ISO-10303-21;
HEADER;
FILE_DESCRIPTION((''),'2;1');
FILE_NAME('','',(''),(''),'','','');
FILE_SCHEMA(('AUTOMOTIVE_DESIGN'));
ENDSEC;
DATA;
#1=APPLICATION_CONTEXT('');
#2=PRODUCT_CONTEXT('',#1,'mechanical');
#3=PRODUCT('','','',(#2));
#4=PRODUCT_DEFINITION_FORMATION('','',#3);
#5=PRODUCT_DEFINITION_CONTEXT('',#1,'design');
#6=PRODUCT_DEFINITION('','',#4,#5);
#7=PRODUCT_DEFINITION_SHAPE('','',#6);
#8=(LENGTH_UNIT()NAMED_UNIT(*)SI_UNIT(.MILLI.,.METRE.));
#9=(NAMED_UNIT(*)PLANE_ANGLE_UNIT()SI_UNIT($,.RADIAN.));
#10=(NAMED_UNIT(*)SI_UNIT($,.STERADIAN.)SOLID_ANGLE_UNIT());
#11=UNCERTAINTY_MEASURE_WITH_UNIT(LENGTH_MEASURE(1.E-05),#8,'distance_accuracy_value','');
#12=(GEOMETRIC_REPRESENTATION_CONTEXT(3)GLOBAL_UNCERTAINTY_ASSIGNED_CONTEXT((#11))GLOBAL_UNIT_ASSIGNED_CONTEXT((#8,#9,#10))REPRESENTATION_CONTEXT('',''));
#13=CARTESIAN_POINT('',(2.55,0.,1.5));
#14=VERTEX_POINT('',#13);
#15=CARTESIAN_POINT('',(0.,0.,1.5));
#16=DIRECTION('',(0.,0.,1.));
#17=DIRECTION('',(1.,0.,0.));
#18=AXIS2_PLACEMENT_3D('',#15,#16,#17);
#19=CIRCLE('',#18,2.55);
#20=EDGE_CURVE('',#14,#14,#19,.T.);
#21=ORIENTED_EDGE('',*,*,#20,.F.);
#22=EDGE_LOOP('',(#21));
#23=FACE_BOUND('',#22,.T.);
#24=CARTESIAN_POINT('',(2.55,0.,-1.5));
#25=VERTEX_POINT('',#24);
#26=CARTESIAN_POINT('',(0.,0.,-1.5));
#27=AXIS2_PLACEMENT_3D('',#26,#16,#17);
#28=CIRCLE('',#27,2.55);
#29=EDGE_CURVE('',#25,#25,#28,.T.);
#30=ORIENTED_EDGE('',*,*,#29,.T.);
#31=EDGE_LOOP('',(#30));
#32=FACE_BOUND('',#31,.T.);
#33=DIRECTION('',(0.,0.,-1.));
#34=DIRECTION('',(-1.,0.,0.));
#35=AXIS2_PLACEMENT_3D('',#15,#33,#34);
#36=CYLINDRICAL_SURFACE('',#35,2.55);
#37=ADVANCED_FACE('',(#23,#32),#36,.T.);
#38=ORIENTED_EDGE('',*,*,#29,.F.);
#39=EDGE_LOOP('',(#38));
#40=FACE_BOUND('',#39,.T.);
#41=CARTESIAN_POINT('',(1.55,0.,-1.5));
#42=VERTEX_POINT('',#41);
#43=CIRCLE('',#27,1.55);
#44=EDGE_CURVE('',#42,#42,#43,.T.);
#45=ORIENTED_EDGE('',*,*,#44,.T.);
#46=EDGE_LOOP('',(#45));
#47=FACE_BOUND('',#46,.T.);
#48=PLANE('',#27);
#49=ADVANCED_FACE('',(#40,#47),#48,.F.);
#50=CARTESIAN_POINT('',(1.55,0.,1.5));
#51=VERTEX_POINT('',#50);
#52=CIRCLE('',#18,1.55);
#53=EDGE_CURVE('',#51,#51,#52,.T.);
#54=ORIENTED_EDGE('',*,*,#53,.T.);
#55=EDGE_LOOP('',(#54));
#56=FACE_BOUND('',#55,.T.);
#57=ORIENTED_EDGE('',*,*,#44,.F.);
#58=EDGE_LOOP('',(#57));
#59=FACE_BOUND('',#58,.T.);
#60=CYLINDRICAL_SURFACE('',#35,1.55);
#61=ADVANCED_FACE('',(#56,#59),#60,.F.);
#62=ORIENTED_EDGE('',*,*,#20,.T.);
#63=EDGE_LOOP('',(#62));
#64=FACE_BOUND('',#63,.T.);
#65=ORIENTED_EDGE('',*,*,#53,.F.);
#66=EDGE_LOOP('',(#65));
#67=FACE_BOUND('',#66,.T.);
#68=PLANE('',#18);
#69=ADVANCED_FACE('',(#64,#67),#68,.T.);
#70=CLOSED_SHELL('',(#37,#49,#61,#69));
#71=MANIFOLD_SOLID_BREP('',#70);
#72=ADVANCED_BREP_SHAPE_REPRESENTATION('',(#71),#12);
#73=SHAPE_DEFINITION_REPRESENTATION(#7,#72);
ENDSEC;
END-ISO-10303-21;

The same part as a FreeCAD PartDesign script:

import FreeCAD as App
import Part
import Sketcher

doc = App.newDocument("Part")
body = doc.addObject("PartDesign::Body", "Body")

sketch1 = body.newObject("Sketcher::SketchObject", "Sketch")
sketch1.AttachmentSupport = (doc.getObject("XY_Plane"), [""])
sketch1.MapMode = "FlatFace"
sketch1.addGeometry(Part.Circle(App.Vector(0, 0, 0), App.Vector(0, 0, 1), 2.55), False)
sketch1.addGeometry(Part.Circle(App.Vector(0, 0, 0), App.Vector(0, 0, 1), 1.55), False)
sketch1.addConstraint(Sketcher.Constraint("Coincident", 0, 3, -1, 1))
sketch1.addConstraint(Sketcher.Constraint("Coincident", 1, 3, -1, 1))
sketch1.addConstraint(Sketcher.Constraint("Diameter", 0, 5.1))
sketch1.addConstraint(Sketcher.Constraint("Diameter", 1, 3.1))
pad1 = body.newObject("PartDesign::Pad", "Pad")
pad1.Profile = sketch1
pad1.Length = 3
pad1.Midplane = True

doc.recompute()
